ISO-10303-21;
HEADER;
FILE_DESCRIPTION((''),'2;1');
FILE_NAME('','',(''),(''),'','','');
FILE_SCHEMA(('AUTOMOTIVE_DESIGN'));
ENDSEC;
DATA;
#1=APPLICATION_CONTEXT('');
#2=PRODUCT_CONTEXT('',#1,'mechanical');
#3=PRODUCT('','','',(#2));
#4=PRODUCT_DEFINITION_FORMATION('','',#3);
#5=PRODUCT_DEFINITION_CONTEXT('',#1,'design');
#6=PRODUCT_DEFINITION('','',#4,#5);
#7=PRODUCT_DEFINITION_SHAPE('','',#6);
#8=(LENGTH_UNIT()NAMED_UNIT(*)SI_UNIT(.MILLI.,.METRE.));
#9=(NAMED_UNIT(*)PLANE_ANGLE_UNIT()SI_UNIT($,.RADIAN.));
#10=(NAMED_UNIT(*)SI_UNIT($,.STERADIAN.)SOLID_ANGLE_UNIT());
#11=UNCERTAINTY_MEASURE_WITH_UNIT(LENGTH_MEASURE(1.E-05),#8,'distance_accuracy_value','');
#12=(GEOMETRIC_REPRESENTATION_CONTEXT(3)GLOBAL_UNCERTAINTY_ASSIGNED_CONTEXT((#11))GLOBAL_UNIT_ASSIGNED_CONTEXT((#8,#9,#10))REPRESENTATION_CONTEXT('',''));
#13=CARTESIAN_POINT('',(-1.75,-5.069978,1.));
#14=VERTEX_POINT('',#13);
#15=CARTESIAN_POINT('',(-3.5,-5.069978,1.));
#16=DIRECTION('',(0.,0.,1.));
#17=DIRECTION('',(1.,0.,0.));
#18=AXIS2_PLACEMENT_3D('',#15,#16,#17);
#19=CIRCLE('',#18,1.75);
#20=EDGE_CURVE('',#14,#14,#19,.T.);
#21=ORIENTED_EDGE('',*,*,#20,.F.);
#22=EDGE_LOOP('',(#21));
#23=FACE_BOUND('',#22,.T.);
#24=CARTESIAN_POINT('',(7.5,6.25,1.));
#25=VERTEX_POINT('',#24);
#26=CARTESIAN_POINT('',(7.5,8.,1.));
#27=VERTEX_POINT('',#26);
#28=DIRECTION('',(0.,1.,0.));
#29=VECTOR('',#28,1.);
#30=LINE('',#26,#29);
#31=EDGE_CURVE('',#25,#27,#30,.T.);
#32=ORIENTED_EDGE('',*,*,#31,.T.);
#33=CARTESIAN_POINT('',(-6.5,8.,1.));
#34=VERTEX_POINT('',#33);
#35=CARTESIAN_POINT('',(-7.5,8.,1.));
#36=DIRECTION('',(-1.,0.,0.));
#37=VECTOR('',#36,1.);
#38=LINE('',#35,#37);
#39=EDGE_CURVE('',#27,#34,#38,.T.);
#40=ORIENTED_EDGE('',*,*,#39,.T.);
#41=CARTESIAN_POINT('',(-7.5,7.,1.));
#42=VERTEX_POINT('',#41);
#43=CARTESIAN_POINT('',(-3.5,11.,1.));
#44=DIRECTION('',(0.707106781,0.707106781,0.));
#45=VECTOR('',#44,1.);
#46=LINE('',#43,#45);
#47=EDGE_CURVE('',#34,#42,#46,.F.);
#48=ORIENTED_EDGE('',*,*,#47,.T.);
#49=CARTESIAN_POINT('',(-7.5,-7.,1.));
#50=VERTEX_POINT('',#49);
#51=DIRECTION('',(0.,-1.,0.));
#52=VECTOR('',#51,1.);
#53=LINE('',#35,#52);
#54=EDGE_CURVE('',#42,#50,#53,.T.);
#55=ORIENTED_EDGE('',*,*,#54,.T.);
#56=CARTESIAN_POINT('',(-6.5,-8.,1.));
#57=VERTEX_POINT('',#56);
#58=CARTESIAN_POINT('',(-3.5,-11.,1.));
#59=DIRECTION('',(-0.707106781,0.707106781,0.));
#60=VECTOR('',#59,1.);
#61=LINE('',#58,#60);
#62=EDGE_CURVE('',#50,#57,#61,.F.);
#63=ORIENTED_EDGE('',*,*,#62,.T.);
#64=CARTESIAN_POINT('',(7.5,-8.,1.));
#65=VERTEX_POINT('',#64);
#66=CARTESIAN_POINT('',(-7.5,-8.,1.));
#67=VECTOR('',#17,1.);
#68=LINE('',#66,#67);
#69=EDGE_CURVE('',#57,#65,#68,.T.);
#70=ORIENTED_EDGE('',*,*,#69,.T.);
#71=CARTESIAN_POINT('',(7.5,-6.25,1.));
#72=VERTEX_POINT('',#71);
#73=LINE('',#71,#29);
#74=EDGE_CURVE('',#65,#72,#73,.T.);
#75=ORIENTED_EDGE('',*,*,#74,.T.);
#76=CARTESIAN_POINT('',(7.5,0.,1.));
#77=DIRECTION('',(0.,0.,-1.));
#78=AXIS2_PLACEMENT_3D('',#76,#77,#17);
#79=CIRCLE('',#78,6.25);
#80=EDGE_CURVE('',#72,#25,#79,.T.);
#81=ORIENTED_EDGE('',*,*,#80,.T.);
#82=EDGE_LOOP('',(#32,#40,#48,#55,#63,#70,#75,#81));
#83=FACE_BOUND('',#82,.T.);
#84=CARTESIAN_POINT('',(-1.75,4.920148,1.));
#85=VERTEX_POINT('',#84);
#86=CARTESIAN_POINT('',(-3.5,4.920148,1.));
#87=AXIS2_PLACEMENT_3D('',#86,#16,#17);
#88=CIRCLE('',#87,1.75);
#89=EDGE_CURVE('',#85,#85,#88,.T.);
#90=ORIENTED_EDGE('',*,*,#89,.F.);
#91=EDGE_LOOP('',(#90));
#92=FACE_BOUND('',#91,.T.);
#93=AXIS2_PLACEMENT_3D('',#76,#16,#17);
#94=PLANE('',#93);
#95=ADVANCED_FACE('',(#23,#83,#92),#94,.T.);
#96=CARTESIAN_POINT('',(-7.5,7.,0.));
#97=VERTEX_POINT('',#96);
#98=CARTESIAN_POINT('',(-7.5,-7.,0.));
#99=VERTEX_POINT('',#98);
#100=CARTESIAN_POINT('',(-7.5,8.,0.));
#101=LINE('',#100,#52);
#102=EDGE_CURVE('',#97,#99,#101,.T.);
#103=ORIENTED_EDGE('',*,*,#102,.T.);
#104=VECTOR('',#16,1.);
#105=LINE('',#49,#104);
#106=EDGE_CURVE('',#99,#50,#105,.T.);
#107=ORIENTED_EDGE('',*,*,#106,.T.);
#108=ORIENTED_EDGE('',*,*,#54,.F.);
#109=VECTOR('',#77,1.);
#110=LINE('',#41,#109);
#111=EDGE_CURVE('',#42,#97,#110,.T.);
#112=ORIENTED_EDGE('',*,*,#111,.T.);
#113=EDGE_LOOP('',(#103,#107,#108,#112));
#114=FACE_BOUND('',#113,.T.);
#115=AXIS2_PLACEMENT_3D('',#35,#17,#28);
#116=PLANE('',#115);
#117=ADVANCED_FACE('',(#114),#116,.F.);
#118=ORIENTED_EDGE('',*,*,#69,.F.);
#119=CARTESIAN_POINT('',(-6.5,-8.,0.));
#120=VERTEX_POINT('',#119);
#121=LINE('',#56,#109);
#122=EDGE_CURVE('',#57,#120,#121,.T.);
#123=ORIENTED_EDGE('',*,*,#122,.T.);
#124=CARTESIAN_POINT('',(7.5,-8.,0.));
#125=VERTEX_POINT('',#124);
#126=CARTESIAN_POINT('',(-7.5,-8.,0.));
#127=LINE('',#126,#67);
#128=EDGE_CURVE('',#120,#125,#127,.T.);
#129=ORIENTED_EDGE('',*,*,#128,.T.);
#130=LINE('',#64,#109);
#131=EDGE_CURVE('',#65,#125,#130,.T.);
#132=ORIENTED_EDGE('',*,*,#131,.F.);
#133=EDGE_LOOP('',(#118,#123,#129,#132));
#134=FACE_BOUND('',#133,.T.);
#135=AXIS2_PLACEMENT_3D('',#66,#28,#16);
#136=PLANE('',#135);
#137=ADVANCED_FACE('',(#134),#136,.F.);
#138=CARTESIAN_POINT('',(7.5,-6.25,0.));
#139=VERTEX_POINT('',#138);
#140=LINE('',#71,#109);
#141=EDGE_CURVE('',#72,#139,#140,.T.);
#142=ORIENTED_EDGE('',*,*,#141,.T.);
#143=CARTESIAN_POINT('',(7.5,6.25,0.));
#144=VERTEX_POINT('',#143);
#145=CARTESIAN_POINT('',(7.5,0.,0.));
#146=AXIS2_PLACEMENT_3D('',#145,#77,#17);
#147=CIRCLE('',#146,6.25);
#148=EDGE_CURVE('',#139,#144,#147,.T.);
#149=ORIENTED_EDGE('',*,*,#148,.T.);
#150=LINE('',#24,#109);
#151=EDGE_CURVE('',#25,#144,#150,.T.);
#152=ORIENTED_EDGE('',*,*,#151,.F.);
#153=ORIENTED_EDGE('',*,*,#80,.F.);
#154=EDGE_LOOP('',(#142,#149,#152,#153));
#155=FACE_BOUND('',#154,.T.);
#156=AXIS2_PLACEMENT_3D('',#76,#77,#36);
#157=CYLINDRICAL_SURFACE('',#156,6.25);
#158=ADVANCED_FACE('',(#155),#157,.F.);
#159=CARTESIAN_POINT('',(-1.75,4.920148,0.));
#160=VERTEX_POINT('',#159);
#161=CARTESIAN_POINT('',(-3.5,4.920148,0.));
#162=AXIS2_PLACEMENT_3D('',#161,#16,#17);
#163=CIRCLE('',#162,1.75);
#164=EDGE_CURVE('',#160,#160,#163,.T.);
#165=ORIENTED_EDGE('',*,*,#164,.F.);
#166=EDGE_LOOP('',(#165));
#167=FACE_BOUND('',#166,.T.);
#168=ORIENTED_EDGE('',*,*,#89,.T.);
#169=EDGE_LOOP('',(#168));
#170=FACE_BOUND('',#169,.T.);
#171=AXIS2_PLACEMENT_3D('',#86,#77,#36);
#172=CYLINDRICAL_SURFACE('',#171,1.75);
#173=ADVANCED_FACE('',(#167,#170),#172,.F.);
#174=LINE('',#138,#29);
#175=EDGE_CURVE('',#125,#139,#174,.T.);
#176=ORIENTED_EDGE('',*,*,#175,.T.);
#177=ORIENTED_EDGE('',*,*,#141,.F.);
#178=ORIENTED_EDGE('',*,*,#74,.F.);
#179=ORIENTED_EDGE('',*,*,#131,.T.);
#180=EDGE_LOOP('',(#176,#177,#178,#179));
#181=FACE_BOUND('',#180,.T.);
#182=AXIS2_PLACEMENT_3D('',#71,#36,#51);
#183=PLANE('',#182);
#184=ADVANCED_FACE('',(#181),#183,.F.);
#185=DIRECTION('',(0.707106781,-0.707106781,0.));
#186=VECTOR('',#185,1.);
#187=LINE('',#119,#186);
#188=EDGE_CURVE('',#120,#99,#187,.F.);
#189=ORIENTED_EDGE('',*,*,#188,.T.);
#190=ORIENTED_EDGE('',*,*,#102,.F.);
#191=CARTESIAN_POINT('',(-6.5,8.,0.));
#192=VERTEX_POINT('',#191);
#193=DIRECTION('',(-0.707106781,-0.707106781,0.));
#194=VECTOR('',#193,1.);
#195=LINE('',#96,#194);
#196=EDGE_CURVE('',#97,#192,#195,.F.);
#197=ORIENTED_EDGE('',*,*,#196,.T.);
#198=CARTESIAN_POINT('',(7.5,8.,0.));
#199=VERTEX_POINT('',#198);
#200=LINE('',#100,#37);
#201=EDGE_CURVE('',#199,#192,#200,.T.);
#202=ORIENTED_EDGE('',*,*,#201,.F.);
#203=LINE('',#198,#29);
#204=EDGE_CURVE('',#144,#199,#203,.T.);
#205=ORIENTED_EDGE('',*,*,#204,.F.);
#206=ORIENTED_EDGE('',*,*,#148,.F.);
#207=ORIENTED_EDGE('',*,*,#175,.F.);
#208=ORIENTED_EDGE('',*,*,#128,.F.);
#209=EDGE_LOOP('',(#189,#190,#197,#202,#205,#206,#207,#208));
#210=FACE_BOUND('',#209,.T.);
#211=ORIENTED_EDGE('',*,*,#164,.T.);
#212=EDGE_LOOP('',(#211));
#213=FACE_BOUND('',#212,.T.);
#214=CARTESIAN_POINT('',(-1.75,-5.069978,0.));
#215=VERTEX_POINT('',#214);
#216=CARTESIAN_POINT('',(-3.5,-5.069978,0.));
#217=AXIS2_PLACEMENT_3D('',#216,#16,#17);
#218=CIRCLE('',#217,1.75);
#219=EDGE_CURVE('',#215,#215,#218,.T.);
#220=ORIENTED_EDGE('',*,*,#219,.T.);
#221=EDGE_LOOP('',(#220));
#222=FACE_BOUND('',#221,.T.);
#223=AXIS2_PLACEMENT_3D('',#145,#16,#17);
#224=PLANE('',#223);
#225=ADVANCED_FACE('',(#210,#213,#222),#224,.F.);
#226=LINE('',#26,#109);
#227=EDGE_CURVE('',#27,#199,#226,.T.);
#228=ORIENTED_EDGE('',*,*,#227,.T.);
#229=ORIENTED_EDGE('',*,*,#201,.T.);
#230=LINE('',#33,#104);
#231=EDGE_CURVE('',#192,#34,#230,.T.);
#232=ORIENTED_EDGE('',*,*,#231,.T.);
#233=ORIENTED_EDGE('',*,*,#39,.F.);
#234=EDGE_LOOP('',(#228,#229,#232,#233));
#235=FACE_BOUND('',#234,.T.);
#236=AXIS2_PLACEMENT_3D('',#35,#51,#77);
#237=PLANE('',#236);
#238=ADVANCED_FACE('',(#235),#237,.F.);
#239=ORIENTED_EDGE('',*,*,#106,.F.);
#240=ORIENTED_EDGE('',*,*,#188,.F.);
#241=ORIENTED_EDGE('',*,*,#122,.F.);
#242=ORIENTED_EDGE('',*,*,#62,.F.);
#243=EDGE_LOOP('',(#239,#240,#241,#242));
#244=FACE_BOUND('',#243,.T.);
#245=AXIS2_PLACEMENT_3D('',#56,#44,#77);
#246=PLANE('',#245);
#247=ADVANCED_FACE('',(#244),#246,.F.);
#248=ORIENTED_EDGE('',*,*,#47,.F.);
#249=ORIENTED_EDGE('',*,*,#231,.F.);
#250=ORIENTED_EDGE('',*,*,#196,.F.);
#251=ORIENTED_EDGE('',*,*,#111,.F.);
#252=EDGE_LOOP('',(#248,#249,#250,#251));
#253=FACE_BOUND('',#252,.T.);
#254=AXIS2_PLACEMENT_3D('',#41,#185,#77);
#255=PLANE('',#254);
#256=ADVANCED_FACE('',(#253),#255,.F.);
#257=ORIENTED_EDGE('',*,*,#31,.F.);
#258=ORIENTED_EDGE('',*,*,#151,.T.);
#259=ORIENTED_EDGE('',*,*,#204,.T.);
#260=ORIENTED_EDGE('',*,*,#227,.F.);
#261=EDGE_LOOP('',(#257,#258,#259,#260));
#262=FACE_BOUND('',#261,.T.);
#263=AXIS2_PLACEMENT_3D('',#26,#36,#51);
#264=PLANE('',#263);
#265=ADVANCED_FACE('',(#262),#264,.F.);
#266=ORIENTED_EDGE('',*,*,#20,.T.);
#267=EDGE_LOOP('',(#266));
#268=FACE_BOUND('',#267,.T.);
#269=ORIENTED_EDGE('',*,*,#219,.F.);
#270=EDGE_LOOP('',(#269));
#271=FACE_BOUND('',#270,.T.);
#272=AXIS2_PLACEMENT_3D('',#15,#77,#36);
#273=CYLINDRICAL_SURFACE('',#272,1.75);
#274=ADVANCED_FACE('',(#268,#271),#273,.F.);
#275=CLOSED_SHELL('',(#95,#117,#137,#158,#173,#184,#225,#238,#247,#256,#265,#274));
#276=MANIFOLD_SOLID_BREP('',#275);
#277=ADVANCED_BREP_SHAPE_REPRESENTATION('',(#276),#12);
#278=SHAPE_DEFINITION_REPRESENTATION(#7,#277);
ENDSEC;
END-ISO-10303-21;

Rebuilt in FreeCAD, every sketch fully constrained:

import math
import FreeCAD as App
import Part
import Sketcher
from FreeCAD import Vector
Q = App.Units.Quantity


def edges_at(feature, points):
    """Names of the edges that pass closest to the given points."""
    edges = feature.Shape.Edges
    near = lambda p: min(range(len(edges)), key=lambda i: edges[i].distToShape(Part.Vertex(*p))[0])
    return sorted({f"Edge{near(p) + 1}" for p in points})

doc = App.newDocument("Part")
params = doc.addObject("Spreadsheet::Sheet", "Params")
for row, (alias, value) in enumerate([
    ("sketch1_diameter", "3.5 mm"),
    ("sketch1_width", "15 mm"),
    ("sketch1_height", "16 mm"),
    ("sketch1_radius", "6.25 mm"),
    ("pad1_length", "1 mm"),
    ("chamfer_size", "1 mm"),
], start=1):
    params.set(f"A{row}", alias)
    params.set(f"B{row}", "=" + value)
    params.setAlias(f"B{row}", alias)

body = doc.addObject("PartDesign::Body", "Body")

# Sketch on XY plane
sketch1 = body.newObject("Sketcher::SketchObject", "Sketch")
sketch1.AttachmentSupport = (doc.getObject("XY_Plane"), [""])
sketch1.MapMode = "FlatFace"
sketch1.addGeometry(Part.LineSegment(Vector(7.5, -8, 0), Vector(7.5, -6.2, 0)), False)
sketch1.addGeometry(Part.ArcOfCircle(Part.Circle(Vector(7.5, 0, 0), Vector(0, 0, 1), 6.2), math.radians(90), math.radians(270)), False)
sketch1.addGeometry(Part.LineSegment(Vector(7.5, 6.2, 0), Vector(7.5, 8, 0)), False)
sketch1.addGeometry(Part.LineSegment(Vector(7.5, 8, 0), Vector(-7.5, 8, 0)), False)
sketch1.addGeometry(Part.LineSegment(Vector(-7.5, 8, 0), Vector(-7.5, -8, 0)), False)
sketch1.addGeometry(Part.LineSegment(Vector(-7.5, -8, 0), Vector(7.5, -8, 0)), False)
sketch1.addGeometry(Part.Circle(Vector(-3.5, -5.1, 0), Vector(0, 0, 1), 1.8), False)
sketch1.addGeometry(Part.Circle(Vector(-3.5, 4.9, 0), Vector(0, 0, 1), 1.8), False)
sketch1.addConstraint(Sketcher.Constraint("Coincident", 0, 2, 1, 2))
sketch1.addConstraint(Sketcher.Constraint("Coincident", 1, 1, 2, 1))
sketch1.addConstraint(Sketcher.Constraint("Coincident", 2, 2, 3, 1))
sketch1.addConstraint(Sketcher.Constraint("Coincident", 3, 2, 4, 1))
sketch1.addConstraint(Sketcher.Constraint("Coincident", 4, 2, 5, 1))
sketch1.addConstraint(Sketcher.Constraint("Coincident", 5, 2, 0, 1))
sketch1.addConstraint(Sketcher.Constraint("Vertical", 0))
sketch1.addConstraint(Sketcher.Constraint("Vertical", 2))
sketch1.addConstraint(Sketcher.Constraint("Horizontal", 3))
sketch1.addConstraint(Sketcher.Constraint("Vertical", 4))
sketch1.addConstraint(Sketcher.Constraint("Horizontal", 5))
sketch1.addConstraint(Sketcher.Constraint("Equal", 6, 7))
sketch1.addConstraint(Sketcher.Constraint("Symmetric", 2, 2, 4, 2, -1, 1))
sketch1.addConstraint(Sketcher.Constraint("Symmetric", 0, 2, 1, 1, -1))
sketch1.addConstraint(Sketcher.Constraint("Vertical", 6, 3, 7, 3))
sketch1.addConstraint(Sketcher.Constraint("Vertical", 1, 3, 0, 2))
sketch1.addConstraint(Sketcher.Constraint("Diameter", 6, Q("3.5 mm")))
sketch1.addConstraint(Sketcher.Constraint("DistanceX", 3, 2, 3, 1, Q("15 mm")))
sketch1.addConstraint(Sketcher.Constraint("DistanceY", 4, 2, 4, 1, Q("16 mm")))
sketch1.addConstraint(Sketcher.Constraint("Radius", 1, Q("6.25 mm")))
sketch1.addConstraint(Sketcher.Constraint("DistanceX", 6, 3, 1, 3, Q("11 mm")))
sketch1.addConstraint(Sketcher.Constraint("DistanceY", 6, 3, -1, 1, Q("5.069978 mm")))
sketch1.addConstraint(Sketcher.Constraint("DistanceY", -1, 1, 7, 3, Q("4.920148 mm")))
sketch1.setExpression("Constraints[16]", "Params.sketch1_diameter")
sketch1.setExpression("Constraints[17]", "Params.sketch1_width")
sketch1.setExpression("Constraints[18]", "Params.sketch1_height")
sketch1.setExpression("Constraints[19]", "Params.sketch1_radius")
pad1 = body.newObject("PartDesign::Pad", "Pad")
pad1.Profile = sketch1
pad1.setExpression("Length", "Params.pad1_length")
doc.recompute()

chamfer = body.newObject("PartDesign::Chamfer", "Chamfer")
chamfer.Base = (pad1, edges_at(pad1, [(-7.5, -8, 0.5), (-7.5, 8, 0.5)]))
chamfer.setExpression("Size", "Params.chamfer_size")

doc.recompute()
